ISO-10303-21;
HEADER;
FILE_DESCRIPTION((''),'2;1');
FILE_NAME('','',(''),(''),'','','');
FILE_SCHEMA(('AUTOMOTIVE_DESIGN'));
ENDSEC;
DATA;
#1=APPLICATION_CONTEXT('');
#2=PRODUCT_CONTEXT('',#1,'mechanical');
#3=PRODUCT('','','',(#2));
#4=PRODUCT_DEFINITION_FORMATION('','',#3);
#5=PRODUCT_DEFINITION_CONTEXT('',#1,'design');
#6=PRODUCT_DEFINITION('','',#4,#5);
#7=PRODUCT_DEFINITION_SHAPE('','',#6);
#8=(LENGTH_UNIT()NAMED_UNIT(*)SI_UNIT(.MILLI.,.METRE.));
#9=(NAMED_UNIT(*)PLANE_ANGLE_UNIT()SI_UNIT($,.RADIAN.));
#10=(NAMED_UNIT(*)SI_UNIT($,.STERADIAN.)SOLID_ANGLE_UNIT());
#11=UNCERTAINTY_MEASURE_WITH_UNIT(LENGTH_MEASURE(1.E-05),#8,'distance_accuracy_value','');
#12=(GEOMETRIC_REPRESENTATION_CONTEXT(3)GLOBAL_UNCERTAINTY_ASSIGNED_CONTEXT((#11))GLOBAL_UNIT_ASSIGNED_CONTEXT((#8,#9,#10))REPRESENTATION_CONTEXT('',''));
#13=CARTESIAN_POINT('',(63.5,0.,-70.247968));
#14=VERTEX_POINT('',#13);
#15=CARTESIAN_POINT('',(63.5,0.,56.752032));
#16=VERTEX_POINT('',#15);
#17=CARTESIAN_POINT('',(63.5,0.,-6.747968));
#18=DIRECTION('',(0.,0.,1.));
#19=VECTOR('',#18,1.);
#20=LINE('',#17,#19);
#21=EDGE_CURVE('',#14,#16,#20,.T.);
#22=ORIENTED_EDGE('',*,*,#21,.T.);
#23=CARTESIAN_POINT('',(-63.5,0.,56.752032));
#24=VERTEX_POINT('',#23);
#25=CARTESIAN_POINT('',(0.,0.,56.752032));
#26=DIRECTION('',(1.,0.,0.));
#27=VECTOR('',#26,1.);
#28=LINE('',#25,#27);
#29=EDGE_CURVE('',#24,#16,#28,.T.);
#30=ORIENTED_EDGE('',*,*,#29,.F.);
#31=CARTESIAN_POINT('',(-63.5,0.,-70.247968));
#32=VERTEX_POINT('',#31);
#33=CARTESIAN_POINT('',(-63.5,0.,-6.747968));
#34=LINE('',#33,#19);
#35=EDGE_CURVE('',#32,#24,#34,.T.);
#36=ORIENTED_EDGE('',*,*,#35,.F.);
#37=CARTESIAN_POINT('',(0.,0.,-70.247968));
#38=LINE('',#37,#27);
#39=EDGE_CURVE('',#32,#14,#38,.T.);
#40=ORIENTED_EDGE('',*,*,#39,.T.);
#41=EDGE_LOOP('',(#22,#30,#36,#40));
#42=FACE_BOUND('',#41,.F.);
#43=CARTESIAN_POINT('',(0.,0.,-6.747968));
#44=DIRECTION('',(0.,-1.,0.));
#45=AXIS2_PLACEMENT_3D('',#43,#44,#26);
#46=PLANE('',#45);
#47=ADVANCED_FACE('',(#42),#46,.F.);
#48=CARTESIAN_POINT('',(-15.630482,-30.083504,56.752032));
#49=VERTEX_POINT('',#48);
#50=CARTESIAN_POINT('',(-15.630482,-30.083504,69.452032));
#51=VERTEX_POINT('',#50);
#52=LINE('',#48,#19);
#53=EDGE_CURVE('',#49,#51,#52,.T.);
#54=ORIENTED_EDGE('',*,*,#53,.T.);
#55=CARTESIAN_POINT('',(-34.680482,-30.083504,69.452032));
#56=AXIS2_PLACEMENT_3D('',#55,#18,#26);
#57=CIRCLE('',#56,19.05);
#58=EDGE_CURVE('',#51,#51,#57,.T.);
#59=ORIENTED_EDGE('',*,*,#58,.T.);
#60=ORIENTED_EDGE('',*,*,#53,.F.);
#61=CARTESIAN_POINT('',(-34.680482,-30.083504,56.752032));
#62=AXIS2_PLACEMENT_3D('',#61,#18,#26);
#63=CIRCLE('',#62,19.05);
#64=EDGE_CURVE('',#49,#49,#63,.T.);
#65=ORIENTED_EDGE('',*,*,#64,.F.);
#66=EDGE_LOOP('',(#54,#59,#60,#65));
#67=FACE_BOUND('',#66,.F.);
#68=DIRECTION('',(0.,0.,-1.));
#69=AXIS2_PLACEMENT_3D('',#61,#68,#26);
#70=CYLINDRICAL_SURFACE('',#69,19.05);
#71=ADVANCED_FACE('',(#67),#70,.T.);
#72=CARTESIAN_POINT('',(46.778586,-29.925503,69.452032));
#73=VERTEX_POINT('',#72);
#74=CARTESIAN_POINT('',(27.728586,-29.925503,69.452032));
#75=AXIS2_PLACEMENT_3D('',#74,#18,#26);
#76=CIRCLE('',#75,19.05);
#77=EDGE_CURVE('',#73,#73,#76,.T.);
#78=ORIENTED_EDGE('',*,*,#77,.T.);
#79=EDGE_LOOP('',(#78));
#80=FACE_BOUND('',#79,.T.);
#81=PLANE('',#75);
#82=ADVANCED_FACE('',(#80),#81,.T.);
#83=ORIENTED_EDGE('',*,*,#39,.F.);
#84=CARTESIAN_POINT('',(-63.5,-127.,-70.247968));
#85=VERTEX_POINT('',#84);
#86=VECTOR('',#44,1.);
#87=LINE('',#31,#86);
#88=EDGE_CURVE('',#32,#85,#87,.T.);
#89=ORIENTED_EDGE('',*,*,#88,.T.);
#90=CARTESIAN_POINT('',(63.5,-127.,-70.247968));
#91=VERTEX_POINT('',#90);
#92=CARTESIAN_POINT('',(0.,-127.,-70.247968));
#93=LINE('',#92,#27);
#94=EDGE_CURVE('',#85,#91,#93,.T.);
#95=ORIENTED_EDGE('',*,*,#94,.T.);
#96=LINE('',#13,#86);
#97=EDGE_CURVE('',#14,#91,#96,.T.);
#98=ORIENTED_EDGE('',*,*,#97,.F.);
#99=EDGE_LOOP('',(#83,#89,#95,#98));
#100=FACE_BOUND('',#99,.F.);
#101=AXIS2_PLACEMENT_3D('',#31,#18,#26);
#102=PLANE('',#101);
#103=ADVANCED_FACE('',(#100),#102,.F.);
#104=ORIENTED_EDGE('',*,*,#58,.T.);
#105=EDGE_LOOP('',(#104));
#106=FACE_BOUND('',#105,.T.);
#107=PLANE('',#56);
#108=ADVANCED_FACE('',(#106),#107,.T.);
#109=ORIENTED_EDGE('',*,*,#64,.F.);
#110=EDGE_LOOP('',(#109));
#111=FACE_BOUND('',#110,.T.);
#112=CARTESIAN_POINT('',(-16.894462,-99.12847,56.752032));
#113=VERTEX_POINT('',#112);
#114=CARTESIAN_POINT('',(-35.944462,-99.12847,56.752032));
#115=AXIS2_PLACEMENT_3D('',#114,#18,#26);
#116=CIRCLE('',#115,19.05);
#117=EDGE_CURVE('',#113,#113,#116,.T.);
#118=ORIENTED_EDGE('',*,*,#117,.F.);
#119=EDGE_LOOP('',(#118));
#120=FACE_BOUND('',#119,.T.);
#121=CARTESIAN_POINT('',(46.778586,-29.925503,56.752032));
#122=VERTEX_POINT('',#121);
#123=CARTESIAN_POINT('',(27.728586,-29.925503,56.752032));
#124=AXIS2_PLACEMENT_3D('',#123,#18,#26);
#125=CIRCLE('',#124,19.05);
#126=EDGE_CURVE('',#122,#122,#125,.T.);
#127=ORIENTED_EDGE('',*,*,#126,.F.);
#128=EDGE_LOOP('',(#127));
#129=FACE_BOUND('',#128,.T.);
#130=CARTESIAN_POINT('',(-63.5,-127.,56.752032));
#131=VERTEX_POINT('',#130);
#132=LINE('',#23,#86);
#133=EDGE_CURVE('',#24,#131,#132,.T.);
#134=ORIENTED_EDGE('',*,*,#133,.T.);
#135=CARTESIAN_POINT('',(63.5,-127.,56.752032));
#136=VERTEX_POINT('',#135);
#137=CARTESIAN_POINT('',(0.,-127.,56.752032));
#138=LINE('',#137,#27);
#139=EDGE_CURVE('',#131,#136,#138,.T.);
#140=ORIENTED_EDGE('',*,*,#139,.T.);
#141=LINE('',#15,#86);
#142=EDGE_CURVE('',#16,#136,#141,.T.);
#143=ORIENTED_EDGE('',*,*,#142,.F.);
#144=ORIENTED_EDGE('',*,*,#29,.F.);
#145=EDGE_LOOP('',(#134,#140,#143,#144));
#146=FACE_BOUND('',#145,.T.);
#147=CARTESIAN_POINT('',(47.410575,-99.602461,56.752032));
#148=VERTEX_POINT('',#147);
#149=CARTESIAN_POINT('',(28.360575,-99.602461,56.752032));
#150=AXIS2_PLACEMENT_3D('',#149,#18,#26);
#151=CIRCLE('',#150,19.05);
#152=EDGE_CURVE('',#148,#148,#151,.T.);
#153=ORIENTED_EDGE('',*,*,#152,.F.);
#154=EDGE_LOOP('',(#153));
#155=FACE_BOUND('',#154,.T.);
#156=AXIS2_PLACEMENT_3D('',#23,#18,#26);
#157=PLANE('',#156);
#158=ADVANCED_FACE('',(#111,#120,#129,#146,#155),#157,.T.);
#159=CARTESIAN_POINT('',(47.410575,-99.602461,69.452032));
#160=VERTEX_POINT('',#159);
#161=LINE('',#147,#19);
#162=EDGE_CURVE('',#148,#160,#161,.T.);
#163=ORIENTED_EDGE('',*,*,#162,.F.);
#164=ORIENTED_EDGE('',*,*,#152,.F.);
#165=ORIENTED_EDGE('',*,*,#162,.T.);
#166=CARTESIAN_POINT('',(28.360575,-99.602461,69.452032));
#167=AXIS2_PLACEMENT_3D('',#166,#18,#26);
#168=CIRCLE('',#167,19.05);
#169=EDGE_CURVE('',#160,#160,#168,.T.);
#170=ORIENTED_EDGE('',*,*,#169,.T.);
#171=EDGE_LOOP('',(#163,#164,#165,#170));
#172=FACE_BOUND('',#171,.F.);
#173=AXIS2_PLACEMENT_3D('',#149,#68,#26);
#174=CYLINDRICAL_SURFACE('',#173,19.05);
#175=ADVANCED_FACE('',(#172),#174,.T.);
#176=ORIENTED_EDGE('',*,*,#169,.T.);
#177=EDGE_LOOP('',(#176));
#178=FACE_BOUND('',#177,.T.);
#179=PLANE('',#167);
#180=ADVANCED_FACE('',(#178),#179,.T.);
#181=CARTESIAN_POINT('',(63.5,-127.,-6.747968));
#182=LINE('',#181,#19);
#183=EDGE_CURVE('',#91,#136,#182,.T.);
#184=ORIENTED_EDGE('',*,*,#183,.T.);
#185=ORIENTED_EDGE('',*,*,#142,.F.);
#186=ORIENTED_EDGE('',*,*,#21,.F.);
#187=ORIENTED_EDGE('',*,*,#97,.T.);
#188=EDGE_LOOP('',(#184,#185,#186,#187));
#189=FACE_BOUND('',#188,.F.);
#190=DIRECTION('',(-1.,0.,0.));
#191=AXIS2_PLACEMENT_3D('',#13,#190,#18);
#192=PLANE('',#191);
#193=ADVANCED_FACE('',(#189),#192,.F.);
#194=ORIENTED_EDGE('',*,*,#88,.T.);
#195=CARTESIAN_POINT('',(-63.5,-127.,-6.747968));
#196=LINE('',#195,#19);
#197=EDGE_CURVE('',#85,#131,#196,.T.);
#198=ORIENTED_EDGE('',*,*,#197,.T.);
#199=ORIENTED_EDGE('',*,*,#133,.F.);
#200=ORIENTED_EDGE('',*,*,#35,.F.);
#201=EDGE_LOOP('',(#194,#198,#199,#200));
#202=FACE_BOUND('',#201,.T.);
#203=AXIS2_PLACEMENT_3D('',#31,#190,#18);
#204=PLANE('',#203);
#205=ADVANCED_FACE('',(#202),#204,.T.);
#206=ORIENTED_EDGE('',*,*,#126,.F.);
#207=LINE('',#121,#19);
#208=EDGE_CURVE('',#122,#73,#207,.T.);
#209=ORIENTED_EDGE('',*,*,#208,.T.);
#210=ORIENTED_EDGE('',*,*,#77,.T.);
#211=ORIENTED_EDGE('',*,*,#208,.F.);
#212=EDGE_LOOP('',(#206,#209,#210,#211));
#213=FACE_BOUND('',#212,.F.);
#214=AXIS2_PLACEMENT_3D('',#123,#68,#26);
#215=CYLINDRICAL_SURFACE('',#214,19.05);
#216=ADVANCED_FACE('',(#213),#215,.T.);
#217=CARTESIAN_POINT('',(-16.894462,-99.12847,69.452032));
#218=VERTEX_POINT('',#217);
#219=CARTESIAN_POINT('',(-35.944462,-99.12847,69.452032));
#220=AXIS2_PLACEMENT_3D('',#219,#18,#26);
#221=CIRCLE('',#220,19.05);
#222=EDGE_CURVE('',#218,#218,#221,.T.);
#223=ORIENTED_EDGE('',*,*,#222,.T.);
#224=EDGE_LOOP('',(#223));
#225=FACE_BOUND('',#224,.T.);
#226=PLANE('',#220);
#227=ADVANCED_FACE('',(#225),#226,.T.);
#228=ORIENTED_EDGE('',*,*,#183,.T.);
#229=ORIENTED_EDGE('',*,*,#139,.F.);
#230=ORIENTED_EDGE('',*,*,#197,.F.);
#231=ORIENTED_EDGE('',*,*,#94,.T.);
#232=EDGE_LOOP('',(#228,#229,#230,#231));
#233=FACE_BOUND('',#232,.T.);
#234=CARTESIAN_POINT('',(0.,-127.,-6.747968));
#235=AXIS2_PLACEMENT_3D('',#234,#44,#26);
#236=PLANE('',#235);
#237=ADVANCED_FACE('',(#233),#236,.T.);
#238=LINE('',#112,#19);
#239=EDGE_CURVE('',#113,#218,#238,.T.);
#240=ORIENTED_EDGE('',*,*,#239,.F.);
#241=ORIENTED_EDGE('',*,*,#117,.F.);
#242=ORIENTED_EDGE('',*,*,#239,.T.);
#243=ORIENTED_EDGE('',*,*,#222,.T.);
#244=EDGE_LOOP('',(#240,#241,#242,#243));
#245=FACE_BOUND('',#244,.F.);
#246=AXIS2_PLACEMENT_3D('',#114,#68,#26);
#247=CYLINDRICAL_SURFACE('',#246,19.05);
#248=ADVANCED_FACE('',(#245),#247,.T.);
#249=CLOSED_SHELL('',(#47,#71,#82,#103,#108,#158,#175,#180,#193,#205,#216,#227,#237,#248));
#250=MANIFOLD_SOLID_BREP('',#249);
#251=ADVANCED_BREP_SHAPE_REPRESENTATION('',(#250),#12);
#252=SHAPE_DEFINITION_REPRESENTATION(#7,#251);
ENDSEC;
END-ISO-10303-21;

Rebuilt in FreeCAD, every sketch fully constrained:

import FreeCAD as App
import Part
import Sketcher

V = App.Vector
Q = App.Units.Quantity

doc = App.newDocument("Part")
body = doc.addObject("PartDesign::Body", "Body")

# Sketch on XZ plane
sketch1 = body.newObject("Sketcher::SketchObject", "Sketch")
sketch1.AttachmentSupport = (doc.getObject("XZ_Plane"), [""])
sketch1.MapMode = "FlatFace"
sketch1.addGeometry([
    Part.LineSegment(V(-64, 57, 0), V(-64, -70, 0)),
    Part.LineSegment(V(-64, -70, 0), V(64, -70, 0)),
    Part.LineSegment(V(64, -70, 0), V(64, 57, 0)),
    Part.LineSegment(V(64, 57, 0), V(-64, 57, 0)),
], False)
sketch1.addConstraint([
    Sketcher.Constraint("Coincident", 0, 2, 1, 1),
    Sketcher.Constraint("Coincident", 1, 2, 2, 1),
    Sketcher.Constraint("Coincident", 2, 2, 3, 1),
    Sketcher.Constraint("Coincident", 3, 2, 0, 1),
    Sketcher.Constraint("Vertical", 0),
    Sketcher.Constraint("Horizontal", 1),
    Sketcher.Constraint("Vertical", 2),
    Sketcher.Constraint("Horizontal", 3),
    Sketcher.Constraint("Equal", 3, 0),
    Sketcher.Constraint("DistanceX", 1, 1, 1, 2, Q("5 in")),
    Sketcher.Constraint("DistanceX", 0, 2, -1, 1, Q("2.5 in")),
    Sketcher.Constraint("DistanceY", 0, 2, -1, 1, 70.247968),
])
pad1 = body.newObject("PartDesign::Pad", "Pad")
pad1.Profile = sketch1
pad1.Length = Q("5 in")

# Sketch on XY plane
sketch2 = body.newObject("Sketcher::SketchObject", "Sketch001")
sketch2.AttachmentSupport = (doc.getObject("XY_Plane"), [""])
sketch2.MapMode = "FlatFace"
sketch2.AttachmentOffset = App.Placement(V(0, 0, 56.752032), App.Rotation())
sketch2.addGeometry([
    Part.Circle(V(-35, -30, 0), V(0, 0, 1), 19),
    Part.Circle(V(28, -30, 0), V(0, 0, 1), 19),
    Part.Circle(V(-36, -99, 0), V(0, 0, 1), 19),
    Part.Circle(V(28, -100, 0), V(0, 0, 1), 19),
], False)
sketch2.addConstraint([
    Sketcher.Constraint("Equal", 0, 1),
    Sketcher.Constraint("Equal", 1, 2),
    Sketcher.Constraint("Equal", 2, 3),
    Sketcher.Constraint("Diameter", 0, Q("1.5 in")),
    Sketcher.Constraint("DistanceY", 0, 3, 1, 3, 0.158001),
    Sketcher.Constraint("DistanceX", 0, 3, -1, 1, 34.680482),
    Sketcher.Constraint("DistanceY", 2, 3, -1, 1, 99.12847),
    Sketcher.Constraint("DistanceY", 3, 3, -1, 1, 99.602461),
    Sketcher.Constraint("DistanceX", 2, 3, 0, 3, 1.26398),
    Sketcher.Constraint("DistanceX", 1, 3, 3, 3, 0.631989),
    Sketcher.Constraint("DistanceY", 3, 3, 1, 3, 69.676958),
    Sketcher.Constraint("DistanceX", -1, 1, 1, 3, 27.728586),
])
pad2 = body.newObject("PartDesign::Pad", "Pad001")
pad2.Profile = sketch2
pad2.Length = Q("0.5 in")

doc.recompute()
